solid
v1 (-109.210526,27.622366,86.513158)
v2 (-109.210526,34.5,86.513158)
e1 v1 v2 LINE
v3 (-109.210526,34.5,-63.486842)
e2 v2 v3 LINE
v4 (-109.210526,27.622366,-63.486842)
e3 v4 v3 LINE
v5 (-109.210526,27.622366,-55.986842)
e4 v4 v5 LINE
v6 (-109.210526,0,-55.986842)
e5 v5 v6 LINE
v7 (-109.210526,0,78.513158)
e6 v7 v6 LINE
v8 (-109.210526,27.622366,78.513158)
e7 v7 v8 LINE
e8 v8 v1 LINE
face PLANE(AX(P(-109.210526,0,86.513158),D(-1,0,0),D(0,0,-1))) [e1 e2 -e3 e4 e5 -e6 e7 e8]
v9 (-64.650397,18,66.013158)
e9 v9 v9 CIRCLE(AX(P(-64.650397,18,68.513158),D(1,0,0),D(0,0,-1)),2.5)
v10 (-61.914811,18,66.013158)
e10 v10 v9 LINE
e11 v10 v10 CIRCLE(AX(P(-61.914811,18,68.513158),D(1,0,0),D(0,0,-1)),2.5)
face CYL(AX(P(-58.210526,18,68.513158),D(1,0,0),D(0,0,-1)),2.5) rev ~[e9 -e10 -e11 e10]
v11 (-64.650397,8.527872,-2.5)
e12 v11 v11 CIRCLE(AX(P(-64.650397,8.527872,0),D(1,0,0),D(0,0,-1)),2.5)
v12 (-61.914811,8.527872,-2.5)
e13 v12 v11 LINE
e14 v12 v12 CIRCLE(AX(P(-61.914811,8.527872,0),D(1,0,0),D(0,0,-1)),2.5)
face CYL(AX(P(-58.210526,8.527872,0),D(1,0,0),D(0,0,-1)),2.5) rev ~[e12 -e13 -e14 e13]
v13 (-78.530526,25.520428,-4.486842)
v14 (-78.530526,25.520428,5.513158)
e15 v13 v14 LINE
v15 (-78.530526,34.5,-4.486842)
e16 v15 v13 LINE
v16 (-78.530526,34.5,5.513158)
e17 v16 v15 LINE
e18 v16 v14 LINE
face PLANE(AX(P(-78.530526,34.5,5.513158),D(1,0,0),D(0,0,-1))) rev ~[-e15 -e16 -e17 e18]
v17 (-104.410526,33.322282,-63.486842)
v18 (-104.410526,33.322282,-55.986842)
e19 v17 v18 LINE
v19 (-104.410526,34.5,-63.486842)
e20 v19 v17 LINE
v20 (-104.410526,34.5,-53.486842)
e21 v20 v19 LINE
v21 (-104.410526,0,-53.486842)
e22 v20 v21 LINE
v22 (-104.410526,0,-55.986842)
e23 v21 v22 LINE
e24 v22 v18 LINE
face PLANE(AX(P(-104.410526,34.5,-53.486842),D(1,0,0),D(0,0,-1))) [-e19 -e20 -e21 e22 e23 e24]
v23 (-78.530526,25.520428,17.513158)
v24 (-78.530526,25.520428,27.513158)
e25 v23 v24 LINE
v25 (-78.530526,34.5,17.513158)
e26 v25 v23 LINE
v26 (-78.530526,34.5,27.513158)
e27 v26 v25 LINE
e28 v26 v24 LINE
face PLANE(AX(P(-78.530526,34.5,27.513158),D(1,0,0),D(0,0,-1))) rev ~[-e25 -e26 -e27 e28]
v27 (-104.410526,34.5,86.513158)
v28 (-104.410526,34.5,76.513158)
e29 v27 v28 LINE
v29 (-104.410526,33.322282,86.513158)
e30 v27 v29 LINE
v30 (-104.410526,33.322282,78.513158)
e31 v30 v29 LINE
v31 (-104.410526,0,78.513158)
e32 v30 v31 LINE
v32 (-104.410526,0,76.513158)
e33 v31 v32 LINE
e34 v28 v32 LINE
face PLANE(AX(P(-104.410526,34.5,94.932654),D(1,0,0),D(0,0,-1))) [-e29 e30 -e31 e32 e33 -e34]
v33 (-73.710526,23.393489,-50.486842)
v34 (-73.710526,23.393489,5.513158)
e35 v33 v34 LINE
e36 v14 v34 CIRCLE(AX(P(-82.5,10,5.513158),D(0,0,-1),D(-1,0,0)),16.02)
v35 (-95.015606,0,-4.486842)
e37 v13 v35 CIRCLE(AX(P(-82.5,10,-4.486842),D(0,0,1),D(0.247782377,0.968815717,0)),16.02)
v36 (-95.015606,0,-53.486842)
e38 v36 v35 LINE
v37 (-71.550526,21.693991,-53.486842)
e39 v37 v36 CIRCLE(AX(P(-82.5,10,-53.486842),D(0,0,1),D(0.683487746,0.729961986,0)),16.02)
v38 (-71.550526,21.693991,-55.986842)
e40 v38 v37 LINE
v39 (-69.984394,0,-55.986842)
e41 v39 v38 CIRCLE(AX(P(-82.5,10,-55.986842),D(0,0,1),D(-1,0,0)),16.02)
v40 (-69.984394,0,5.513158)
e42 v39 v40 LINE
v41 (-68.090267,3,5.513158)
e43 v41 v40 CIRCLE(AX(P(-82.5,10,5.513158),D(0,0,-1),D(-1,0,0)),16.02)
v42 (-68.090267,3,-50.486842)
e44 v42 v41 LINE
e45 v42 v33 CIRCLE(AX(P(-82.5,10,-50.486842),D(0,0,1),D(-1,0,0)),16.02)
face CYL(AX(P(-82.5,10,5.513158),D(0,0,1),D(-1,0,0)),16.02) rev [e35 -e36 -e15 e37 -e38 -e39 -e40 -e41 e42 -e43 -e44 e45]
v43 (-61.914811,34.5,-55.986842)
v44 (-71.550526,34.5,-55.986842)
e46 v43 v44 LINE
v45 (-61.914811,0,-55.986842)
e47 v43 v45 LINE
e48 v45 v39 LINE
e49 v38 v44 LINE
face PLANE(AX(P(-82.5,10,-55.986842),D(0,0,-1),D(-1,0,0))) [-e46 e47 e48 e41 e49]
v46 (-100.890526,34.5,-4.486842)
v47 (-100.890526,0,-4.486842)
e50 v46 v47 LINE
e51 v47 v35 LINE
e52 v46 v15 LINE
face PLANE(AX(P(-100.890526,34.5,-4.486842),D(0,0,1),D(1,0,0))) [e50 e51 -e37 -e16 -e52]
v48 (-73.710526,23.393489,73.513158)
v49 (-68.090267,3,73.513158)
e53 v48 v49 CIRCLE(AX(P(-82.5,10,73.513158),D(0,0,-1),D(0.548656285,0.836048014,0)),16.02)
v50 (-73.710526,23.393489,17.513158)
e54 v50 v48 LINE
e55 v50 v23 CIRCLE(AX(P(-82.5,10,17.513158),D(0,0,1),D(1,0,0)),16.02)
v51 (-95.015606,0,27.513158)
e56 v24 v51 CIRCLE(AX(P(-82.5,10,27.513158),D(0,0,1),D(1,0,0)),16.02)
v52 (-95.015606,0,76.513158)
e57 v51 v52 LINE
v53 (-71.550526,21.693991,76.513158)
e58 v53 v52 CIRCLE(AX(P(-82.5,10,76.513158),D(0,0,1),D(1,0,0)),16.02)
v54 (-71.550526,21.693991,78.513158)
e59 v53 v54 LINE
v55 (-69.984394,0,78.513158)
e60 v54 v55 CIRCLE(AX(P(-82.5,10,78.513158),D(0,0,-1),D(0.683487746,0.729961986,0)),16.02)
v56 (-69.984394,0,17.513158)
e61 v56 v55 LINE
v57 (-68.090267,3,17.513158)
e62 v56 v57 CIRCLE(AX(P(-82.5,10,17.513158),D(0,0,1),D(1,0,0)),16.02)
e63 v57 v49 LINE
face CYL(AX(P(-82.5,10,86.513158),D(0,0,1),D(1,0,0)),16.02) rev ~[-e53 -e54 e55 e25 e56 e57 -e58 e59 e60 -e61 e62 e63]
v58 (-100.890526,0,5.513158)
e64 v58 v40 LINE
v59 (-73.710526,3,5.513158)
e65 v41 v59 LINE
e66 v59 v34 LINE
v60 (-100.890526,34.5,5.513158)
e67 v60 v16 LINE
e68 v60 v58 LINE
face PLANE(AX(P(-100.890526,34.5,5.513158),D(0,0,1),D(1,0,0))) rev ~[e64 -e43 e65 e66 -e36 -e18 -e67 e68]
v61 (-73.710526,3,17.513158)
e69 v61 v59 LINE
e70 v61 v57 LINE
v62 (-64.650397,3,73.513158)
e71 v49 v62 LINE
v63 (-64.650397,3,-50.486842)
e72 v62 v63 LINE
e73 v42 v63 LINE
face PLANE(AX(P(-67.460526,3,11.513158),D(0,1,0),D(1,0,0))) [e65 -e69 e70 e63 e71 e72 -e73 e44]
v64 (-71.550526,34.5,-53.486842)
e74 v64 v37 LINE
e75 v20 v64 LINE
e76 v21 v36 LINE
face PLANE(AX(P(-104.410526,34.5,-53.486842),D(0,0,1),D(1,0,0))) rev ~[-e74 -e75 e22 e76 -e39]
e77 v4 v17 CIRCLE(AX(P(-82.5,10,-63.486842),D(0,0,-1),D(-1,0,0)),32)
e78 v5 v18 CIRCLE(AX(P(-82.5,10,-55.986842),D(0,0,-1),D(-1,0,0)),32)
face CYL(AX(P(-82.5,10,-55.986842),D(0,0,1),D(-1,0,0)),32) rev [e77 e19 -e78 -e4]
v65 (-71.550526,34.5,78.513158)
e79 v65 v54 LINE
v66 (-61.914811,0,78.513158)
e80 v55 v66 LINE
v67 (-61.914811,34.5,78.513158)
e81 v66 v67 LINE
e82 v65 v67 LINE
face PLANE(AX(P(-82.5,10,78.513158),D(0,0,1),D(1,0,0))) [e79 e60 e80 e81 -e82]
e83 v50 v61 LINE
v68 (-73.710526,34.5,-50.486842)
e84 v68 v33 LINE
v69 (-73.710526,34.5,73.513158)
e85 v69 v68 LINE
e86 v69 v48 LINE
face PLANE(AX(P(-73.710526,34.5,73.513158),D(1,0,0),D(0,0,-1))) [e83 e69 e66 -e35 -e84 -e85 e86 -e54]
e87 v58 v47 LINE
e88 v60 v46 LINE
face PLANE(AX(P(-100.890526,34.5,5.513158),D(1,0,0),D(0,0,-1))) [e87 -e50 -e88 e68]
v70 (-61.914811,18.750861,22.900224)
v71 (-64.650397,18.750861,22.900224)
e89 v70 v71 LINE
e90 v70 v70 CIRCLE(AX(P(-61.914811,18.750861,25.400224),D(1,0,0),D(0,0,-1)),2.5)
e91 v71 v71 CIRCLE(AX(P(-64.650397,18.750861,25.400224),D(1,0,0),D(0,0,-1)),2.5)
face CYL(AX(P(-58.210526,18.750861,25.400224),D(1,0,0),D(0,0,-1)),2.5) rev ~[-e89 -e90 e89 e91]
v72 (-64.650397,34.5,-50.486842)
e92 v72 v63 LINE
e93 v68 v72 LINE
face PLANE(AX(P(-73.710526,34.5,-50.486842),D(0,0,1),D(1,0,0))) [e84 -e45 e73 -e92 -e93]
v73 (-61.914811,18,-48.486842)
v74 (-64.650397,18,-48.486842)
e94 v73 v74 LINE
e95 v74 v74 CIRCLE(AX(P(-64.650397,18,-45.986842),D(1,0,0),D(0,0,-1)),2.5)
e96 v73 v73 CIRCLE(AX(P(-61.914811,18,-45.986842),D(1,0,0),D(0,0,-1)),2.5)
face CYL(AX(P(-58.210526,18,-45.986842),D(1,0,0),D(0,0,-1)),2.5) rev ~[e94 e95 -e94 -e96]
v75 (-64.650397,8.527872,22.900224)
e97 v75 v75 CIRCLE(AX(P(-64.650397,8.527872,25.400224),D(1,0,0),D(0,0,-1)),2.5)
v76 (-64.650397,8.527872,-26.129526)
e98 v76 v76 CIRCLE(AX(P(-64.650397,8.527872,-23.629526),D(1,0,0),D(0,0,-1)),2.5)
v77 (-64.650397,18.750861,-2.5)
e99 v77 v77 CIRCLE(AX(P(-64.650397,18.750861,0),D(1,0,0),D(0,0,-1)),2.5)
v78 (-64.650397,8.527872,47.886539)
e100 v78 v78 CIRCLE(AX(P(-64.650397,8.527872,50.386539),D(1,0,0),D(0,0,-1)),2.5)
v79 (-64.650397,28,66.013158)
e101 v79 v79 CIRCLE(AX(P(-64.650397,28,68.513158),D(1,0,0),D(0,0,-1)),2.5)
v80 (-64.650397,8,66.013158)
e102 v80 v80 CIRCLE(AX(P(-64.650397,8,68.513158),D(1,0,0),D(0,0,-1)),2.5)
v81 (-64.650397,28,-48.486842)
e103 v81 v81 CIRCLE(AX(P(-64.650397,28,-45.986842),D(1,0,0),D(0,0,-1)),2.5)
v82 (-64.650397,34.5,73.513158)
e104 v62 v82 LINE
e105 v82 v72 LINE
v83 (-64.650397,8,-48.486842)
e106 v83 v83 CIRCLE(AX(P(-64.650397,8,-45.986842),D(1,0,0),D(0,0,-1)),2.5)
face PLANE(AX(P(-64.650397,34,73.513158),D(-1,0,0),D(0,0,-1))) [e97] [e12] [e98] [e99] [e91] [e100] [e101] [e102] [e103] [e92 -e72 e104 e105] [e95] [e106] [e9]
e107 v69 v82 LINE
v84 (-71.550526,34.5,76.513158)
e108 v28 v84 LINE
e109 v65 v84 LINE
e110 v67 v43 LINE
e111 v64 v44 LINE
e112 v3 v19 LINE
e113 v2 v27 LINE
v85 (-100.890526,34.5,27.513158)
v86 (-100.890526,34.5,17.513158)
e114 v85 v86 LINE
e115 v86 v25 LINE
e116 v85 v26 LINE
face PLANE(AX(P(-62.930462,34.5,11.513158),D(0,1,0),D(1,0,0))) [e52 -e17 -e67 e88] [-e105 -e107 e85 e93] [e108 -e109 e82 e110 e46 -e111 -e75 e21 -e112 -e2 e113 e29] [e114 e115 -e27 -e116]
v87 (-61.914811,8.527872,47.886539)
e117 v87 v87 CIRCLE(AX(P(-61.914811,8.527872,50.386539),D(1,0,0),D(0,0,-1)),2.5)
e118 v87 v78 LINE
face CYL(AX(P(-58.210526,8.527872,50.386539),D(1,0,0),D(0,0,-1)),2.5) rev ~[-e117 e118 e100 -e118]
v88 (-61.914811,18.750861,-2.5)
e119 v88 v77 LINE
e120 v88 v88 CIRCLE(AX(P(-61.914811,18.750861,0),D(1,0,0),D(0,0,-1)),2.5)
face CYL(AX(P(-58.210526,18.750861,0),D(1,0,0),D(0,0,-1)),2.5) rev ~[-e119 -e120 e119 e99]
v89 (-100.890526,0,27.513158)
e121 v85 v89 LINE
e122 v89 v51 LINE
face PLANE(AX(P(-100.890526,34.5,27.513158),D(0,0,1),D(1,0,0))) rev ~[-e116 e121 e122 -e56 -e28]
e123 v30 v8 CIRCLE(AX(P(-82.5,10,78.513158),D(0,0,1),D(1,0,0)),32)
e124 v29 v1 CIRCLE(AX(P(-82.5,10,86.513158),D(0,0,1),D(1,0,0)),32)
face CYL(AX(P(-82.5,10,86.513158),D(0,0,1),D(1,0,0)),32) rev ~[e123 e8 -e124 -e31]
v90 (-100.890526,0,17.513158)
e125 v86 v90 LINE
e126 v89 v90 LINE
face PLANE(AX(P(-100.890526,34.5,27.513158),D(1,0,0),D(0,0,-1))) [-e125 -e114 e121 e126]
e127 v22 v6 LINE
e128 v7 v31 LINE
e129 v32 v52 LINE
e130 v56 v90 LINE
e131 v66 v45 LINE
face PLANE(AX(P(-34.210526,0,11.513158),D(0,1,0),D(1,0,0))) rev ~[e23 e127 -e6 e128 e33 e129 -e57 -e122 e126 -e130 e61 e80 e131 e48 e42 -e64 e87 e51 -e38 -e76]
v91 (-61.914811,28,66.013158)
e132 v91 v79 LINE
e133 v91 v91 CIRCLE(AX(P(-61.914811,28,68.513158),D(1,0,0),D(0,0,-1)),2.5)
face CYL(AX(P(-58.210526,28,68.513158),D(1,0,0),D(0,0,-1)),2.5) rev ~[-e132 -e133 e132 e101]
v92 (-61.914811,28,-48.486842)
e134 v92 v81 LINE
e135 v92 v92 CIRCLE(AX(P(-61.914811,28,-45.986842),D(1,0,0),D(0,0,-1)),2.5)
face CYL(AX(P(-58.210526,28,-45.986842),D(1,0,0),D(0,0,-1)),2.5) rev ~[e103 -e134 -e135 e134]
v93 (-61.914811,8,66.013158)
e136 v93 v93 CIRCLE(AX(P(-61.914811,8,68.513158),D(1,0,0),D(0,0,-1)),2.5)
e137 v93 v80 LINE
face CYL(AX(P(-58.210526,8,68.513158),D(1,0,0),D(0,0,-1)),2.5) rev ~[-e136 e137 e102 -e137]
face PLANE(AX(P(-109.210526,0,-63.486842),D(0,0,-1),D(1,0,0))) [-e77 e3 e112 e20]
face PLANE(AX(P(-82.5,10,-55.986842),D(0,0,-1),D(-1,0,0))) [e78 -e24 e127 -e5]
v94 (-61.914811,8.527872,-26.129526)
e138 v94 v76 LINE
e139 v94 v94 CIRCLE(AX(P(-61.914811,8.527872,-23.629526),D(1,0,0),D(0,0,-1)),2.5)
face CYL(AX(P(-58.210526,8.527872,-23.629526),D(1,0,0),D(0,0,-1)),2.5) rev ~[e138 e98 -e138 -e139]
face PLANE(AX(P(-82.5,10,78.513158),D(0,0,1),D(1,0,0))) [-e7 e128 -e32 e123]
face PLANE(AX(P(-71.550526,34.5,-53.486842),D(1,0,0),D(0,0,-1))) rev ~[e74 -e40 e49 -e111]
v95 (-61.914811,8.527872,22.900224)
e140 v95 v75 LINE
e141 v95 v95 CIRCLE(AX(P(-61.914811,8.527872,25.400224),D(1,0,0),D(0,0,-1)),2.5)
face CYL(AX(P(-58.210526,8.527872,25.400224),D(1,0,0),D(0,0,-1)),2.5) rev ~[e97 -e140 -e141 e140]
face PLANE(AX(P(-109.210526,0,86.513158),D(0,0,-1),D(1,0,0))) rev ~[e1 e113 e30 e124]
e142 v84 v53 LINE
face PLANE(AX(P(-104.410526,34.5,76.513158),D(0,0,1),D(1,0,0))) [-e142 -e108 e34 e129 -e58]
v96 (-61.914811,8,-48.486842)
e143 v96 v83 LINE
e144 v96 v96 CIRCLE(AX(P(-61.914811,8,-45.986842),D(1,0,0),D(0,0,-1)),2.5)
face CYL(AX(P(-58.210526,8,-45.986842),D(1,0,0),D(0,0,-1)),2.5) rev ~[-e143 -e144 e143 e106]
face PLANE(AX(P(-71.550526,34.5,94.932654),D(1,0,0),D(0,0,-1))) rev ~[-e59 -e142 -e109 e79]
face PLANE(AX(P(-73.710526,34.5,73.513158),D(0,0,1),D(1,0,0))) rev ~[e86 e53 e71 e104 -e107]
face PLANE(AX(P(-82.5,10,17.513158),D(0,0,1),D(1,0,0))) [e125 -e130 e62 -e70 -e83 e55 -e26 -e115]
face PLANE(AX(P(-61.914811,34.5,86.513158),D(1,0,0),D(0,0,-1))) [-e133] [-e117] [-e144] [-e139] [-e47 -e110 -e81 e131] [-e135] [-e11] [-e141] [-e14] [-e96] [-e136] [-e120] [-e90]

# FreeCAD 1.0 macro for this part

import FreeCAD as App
import Part
import Sketcher
from FreeCAD import Vector

doc = App.newDocument("Part")
body = doc.addObject("PartDesign::Body", "Body")

# Sketch on XZ plane
sketch1 = body.newObject("Sketcher::SketchObject", "Sketch")
sketch1.AttachmentSupport = (doc.getObject("XZ_Plane"), [""])
sketch1.MapMode = "FlatFace"
sketch1.addGeometry([
    Part.LineSegment(Vector(-109.210526, -63.486842, 0), Vector(-109.210526, 86.513158, 0)),
    Part.LineSegment(Vector(-109.210526, 86.513158, 0), Vector(40.789474, 86.513158, 0)),
    Part.LineSegment(Vector(40.789474, 86.513158, 0), Vector(40.789474, -63.486842, 0)),
    Part.LineSegment(Vector(40.789474, -63.486842, 0), Vector(-109.210526, -63.486842, 0)),
], False)
sketch1.addConstraint([
    Sketcher.Constraint("Coincident", 0, 2, 1, 1),
    Sketcher.Constraint("Coincident", 1, 2, 2, 1),
    Sketcher.Constraint("Coincident", 2, 2, 3, 1),
    Sketcher.Constraint("Coincident", 3, 2, 0, 1),
    Sketcher.Constraint("Vertical", 0),
    Sketcher.Constraint("Horizontal", 1),
    Sketcher.Constraint("Vertical", 2),
    Sketcher.Constraint("Horizontal", 3),
    Sketcher.Constraint("Equal", 3, 0),
    Sketcher.Constraint("DistanceX", 1, 1, 1, 2, 150.0),
    Sketcher.Constraint("DistanceX", 0, 2, -1, 1, 109.210526),
    Sketcher.Constraint("DistanceY", -1, 1, 0, 2, 86.513158),
])
pad1 = body.newObject("PartDesign::Pad", "Pad")
pad1.Profile = sketch1
pad1.Length = 34.5
pad1.Reversed = True

# Sketch on XZ plane
sketch2 = body.newObject("Sketcher::SketchObject", "Sketch001")
sketch2.AttachmentSupport = (doc.getObject("XZ_Plane"), [""])
sketch2.MapMode = "FlatFace"
sketch2.AttachmentOffset = App.Placement(Vector(0, 0, -34.5), App.Rotation())
sketch2.addGeometry([
    Part.LineSegment(Vector(-58.210526, -60.486842, 0), Vector(-58.210526, 83.513158, 0)),
    Part.LineSegment(Vector(-58.210526, 83.513158, 0), Vector(37.789474, 83.513158, 0)),
    Part.LineSegment(Vector(37.789474, 83.513158, 0), Vector(37.789474, -60.486842, 0)),
    Part.LineSegment(Vector(37.789474, -60.486842, 0), Vector(-58.210526, -60.486842, 0)),
], False)
sketch2.addConstraint([
    Sketcher.Constraint("Coincident", 0, 2, 1, 1),
    Sketcher.Constraint("Coincident", 1, 2, 2, 1),
    Sketcher.Constraint("Coincident", 2, 2, 3, 1),
    Sketcher.Constraint("Coincident", 3, 2, 0, 1),
    Sketcher.Constraint("Vertical", 0),
    Sketcher.Constraint("Horizontal", 1),
    Sketcher.Constraint("Vertical", 2),
    Sketcher.Constraint("Horizontal", 3),
    Sketcher.Constraint("DistanceX", 1, 1, 1, 2, 96.0),
    Sketcher.Constraint("DistanceY", 0, 1, 0, 2, 144.0),
    Sketcher.Constraint("DistanceX", 0, 2, -1, 1, 58.210526),
    Sketcher.Constraint("DistanceY", -1, 1, 0, 2, 83.513158),
])
pocket1 = body.newObject("PartDesign::Pocket", "Pocket")
pocket1.Profile = sketch2
pocket1.Length = 31.5
pocket1.Reversed = True

# Sketch on XY plane
sketch3 = body.newObject("Sketcher::SketchObject", "Sketch002")
sketch3.AttachmentSupport = (doc.getObject("XY_Plane"), [""])
sketch3.MapMode = "FlatFace"
sketch3.AttachmentOffset = App.Placement(Vector(0, 0, 86.513158), App.Rotation())
sketch3.addGeometry([
    Part.Circle(Vector(33.789474, 10, 0), Vector(0, 0, 1), 2.5),
    Part.Circle(Vector(33.789474, 20, 0), Vector(0, 0, 1), 2.5),
    Part.Circle(Vector(33.789474, 30, 0), Vector(0, 0, 1), 2.5),
], False)
sketch3.addConstraint([
    Sketcher.Constraint("Equal", 0, 1),
    Sketcher.Constraint("Equal", 1, 2),
    Sketcher.Constraint("Vertical", 0, 3, 1, 3),
    Sketcher.Constraint("Vertical", 1, 3, 2, 3),
    Sketcher.Constraint("Diameter", 0, 5.0),
    Sketcher.Constraint("DistanceY", -1, 1, 0, 3, 10.0),
    Sketcher.Constraint("DistanceY", -1, 1, 1, 3, 20.0),
    Sketcher.Constraint("DistanceY", -1, 1, 2, 3, 30.0),
    Sketcher.Constraint("DistanceX", -1, 1, 0, 3, 33.789474),
])
pocket2 = body.newObject("PartDesign::Pocket", "Pocket001")
pocket2.Profile = sketch3
pocket2.Length = 5

# Sketch on XY plane
sketch4 = body.newObject("Sketcher::SketchObject", "Sketch003")
sketch4.AttachmentSupport = (doc.getObject("XY_Plane"), [""])
sketch4.MapMode = "FlatFace"
sketch4.AttachmentOffset = App.Placement(Vector(0, 0, -58.486842), App.Rotation())
sketch4.addGeometry([
    Part.Circle(Vector(33.789474, 10, 0), Vector(0, 0, 1), 2.5),
    Part.Circle(Vector(33.789474, 20, 0), Vector(0, 0, 1), 2.5),
    Part.Circle(Vector(33.789474, 30, 0), Vector(0, 0, 1), 2.5),
], False)
sketch4.addConstraint([
    Sketcher.Constraint("Equal", 0, 1),
    Sketcher.Constraint("Equal", 1, 2),
    Sketcher.Constraint("Vertical", 0, 3, 1, 3),
    Sketcher.Constraint("Vertical", 1, 3, 2, 3),
    Sketcher.Constraint("Diameter", 0, 5.0),
    Sketcher.Constraint("DistanceY", -1, 1, 0, 3, 10.0),
    Sketcher.Constraint("DistanceY", -1, 1, 1, 3, 20.0),
    Sketcher.Constraint("DistanceY", -1, 1, 2, 3, 30.0),
    Sketcher.Constraint("DistanceX", -1, 1, 0, 3, 33.789474),
])
pocket3 = body.newObject("PartDesign::Pocket", "Pocket002")
pocket3.Profile = sketch4
pocket3.Length = 5

# Sketch on XZ plane
sketch5 = body.newObject("Sketcher::SketchObject", "Sketch004")
sketch5.AttachmentSupport = (doc.getObject("XZ_Plane"), [""])
sketch5.MapMode = "FlatFace"
sketch5.AttachmentOffset = App.Placement(Vector(0, 0, -34.5), App.Rotation())
sketch5.addGeometry([
    Part.LineSegment(Vector(-73.710526, -50.486842, 0), Vector(-73.710526, 73.513158, 0)),
    Part.LineSegment(Vector(-73.710526, 73.513158, 0), Vector(-61.210526, 73.513158, 0)),
    Part.LineSegment(Vector(-61.210526, 73.513158, 0), Vector(-61.210526, -50.486842, 0)),
    Part.LineSegment(Vector(-61.210526, -50.486842, 0), Vector(-73.710526, -50.486842, 0)),
], False)
sketch5.addConstraint([
    Sketcher.Constraint("Coincident", 0, 2, 1, 1),
    Sketcher.Constraint("Coincident", 1, 2, 2, 1),
    Sketcher.Constraint("Coincident", 2, 2, 3, 1),
    Sketcher.Constraint("Coincident", 3, 2, 0, 1),
    Sketcher.Constraint("Vertical", 0),
    Sketcher.Constraint("Horizontal", 1),
    Sketcher.Constraint("Vertical", 2),
    Sketcher.Constraint("Horizontal", 3),
    Sketcher.Constraint("DistanceY", 0, 1, 0, 2, 124.0),
    Sketcher.Constraint("DistanceX", 1, 1, 1, 2, 12.5),
    Sketcher.Constraint("DistanceX", 0, 2, -1, 1, 73.710526),
    Sketcher.Constraint("DistanceY", -1, 1, 0, 2, 73.513158),
])
pocket4 = body.newObject("PartDesign::Pocket", "Pocket003")
pocket4.Profile = sketch5
pocket4.Length = 31.5
pocket4.Reversed = True

# Sketch on XZ plane
sketch6 = body.newObject("Sketcher::SketchObject", "Sketch005")
sketch6.AttachmentSupport = (doc.getObject("XZ_Plane"), [""])
sketch6.MapMode = "FlatFace"
sketch6.AttachmentOffset = App.Placement(Vector(0, 0, -34.5), App.Rotation())
sketch6.addGeometry([
    Part.LineSegment(Vector(-104.410526, -69.183519, 0), Vector(-104.410526, -53.486842, 0)),  # 0
    Part.LineSegment(Vector(-104.410526, -53.486842, 0), Vector(-71.550526, -53.486842, 0)),  # 1
    Part.LineSegment(Vector(-71.550526, -53.486842, 0), Vector(-71.550526, -69.183519, 0)),  # 2
    Part.LineSegment(Vector(-71.550526, -69.183519, 0), Vector(-104.410526, -69.183519, 0)),  # 3
    Part.LineSegment(Vector(-104.410526, 76.513158, 0), Vector(-104.410526, 94.932654, 0)),  # 4
    Part.LineSegment(Vector(-104.410526, 94.932654, 0), Vector(-71.550526, 94.932654, 0)),  # 5
    Part.LineSegment(Vector(-71.550526, 94.932654, 0), Vector(-71.550526, 76.513158, 0)),  # 6
    Part.LineSegment(Vector(-71.550526, 76.513158, 0), Vector(-104.410526, 76.513158, 0)),  # 7
], False)
sketch6.addConstraint([
    Sketcher.Constraint("Coincident", 0, 2, 1, 1),
    Sketcher.Constraint("Coincident", 1, 2, 2, 1),
    Sketcher.Constraint("Coincident", 2, 2, 3, 1),
    Sketcher.Constraint("Coincident", 3, 2, 0, 1),
    Sketcher.Constraint("Coincident", 4, 2, 5, 1),
    Sketcher.Constraint("Coincident", 5, 2, 6, 1),
    Sketcher.Constraint("Coincident", 6, 2, 7, 1),
    Sketcher.Constraint("Coincident", 7, 2, 4, 1),
    Sketcher.Constraint("Vertical", 0),
    Sketcher.Constraint("Horizontal", 1),
    Sketcher.Constraint("Vertical", 2),
    Sketcher.Constraint("Horizontal", 3),
    Sketcher.Constraint("Vertical", 4),
    Sketcher.Constraint("Horizontal", 5),
    Sketcher.Constraint("Vertical", 6),
    Sketcher.Constraint("Horizontal", 7),
    Sketcher.Constraint("Vertical", 3, 2, 4, 2),
    Sketcher.Constraint("Vertical", 2, 2, 5, 2),
    Sketcher.Constraint("DistanceY", 1, 2, 6, 2, 130.0),
    Sketcher.Constraint("DistanceX", 1, 1, 1, 2, 32.86),
    Sketcher.Constraint("DistanceY", 0, 1, 0, 2, 15.696676),
    Sketcher.Constraint("DistanceY", 4, 1, 4, 2, 18.419496),
    Sketcher.Constraint("DistanceY", 2, 2, -1, 1, 69.183519),
    Sketcher.Constraint("DistanceX", 0, 2, -1, 1, 104.410526),
])
pocket5 = body.newObject("PartDesign::Pocket", "Pocket004")
pocket5.Profile = sketch6
pocket5.Length = 36
pocket5.Reversed = True

# Sketch on XZ plane
sketch7 = body.newObject("Sketcher::SketchObject", "Sketch006")
sketch7.AttachmentSupport = (doc.getObject("XZ_Plane"), [""])
sketch7.MapMode = "FlatFace"
sketch7.AttachmentOffset = App.Placement(Vector(0, 0, -34.5), App.Rotation())
sketch7.addGeometry([
    Part.LineSegment(Vector(-100.890526, -4.486842, 0), Vector(-100.890526, 5.513158, 0)),  # 0
    Part.LineSegment(Vector(-100.890526, 5.513158, 0), Vector(-78.530526, 5.513158, 0)),  # 1
    Part.LineSegment(Vector(-78.530526, 5.513158, 0), Vector(-78.530526, -4.486842, 0)),  # 2
    Part.LineSegment(Vector(-78.530526, -4.486842, 0), Vector(-100.890526, -4.486842, 0)),  # 3
    Part.LineSegment(Vector(-100.890526, 17.513158, 0), Vector(-100.890526, 27.513158, 0)),  # 4
    Part.LineSegment(Vector(-100.890526, 27.513158, 0), Vector(-78.530526, 27.513158, 0)),  # 5
    Part.LineSegment(Vector(-78.530526, 27.513158, 0), Vector(-78.530526, 17.513158, 0)),  # 6
    Part.LineSegment(Vector(-78.530526, 17.513158, 0), Vector(-100.890526, 17.513158, 0)),  # 7
], False)
sketch7.addConstraint([
    Sketcher.Constraint("Coincident", 0, 2, 1, 1),
    Sketcher.Constraint("Coincident", 1, 2, 2, 1),
    Sketcher.Constraint("Coincident", 2, 2, 3, 1),
    Sketcher.Constraint("Coincident", 3, 2, 0, 1),
    Sketcher.Constraint("Coincident", 4, 2, 5, 1),
    Sketcher.Constraint("Coincident", 5, 2, 6, 1),
    Sketcher.Constraint("Coincident", 6, 2, 7, 1),
    Sketcher.Constraint("Coincident", 7, 2, 4, 1),
    Sketcher.Constraint("Vertical", 0),
    Sketcher.Constraint("Horizontal", 1),
    Sketcher.Constraint("Vertical", 2),
    Sketcher.Constraint("Horizontal", 3),
    Sketcher.Constraint("Vertical", 4),
    Sketcher.Constraint("Horizontal", 5),
    Sketcher.Constraint("Vertical", 6),
    Sketcher.Constraint("Horizontal", 7),
    Sketcher.Constraint("Vertical", 3, 2, 4, 2),
    Sketcher.Constraint("Vertical", 2, 2, 5, 2),
    Sketcher.Constraint("Equal", 2, 4),
    Sketcher.Constraint("DistanceY", 0, 1, 0, 2, 10.0),
    Sketcher.Constraint("DistanceY", 0, 2, 4, 2, 22.0),
    Sketcher.Constraint("DistanceX", 1, 1, 1, 2, 22.36),
    Sketcher.Constraint("DistanceX", 0, 2, -1, 1, 100.890526),
    Sketcher.Constraint("DistanceY", -1, 1, 0, 2, 5.513158),
])
pocket6 = body.newObject("PartDesign::Pocket", "Pocket005")
pocket6.Profile = sketch7
pocket6.Length = 36
pocket6.Reversed = True

# Sketch on XY plane
sketch8 = body.newObject("Sketcher::SketchObject", "Sketch007")
sketch8.AttachmentSupport = (doc.getObject("XY_Plane"), [""])
sketch8.MapMode = "FlatFace"
sketch8.AttachmentOffset = App.Placement(Vector(0, 0, 86.513158), App.Rotation())
sketch8.addGeometry(Part.Circle(Vector(-82.5, 10, 0), Vector(0, 0, 1), 32), False)
sketch8.addConstraint([
    Sketcher.Constraint("Diameter", 0, 64.0),
    Sketcher.Constraint("DistanceY", -1, 1, 0, 3, 10.0),
    Sketcher.Constraint("DistanceX", 0, 3, -1, 1, 82.5),
])
pocket7 = body.newObject("PartDesign::Pocket", "Pocket006")
pocket7.Profile = sketch8
pocket7.Length = 8

# Sketch on XY plane
sketch9 = body.newObject("Sketcher::SketchObject", "Sketch008")
sketch9.AttachmentSupport = (doc.getObject("XY_Plane"), [""])
sketch9.MapMode = "FlatFace"
sketch9.AttachmentOffset = App.Placement(Vector(0, 0, 86.513158), App.Rotation())
sketch9.addGeometry(Part.Circle(Vector(-82.5, 10, 0), Vector(0, 0, 1), 16.02), False)
sketch9.addConstraint([
    Sketcher.Constraint("Diameter", 0, 32.04),
    Sketcher.Constraint("DistanceY", -1, 1, 0, 3, 10.0),
    Sketcher.Constraint("DistanceX", 0, 3, -1, 1, 82.5),
])
pocket8 = body.newObject("PartDesign::Pocket", "Pocket007")
pocket8.Profile = sketch9
pocket8.Length = 69

# Sketch on XY plane
sketch10 = body.newObject("Sketcher::SketchObject", "Sketch009")
sketch10.AttachmentSupport = (doc.getObject("XY_Plane"), [""])
sketch10.MapMode = "FlatFace"
sketch10.AttachmentOffset = App.Placement(Vector(0, 0, -55.986842), App.Rotation())
sketch10.addGeometry(Part.Circle(Vector(-82.5, 10, 0), Vector(0, 0, 1), 32), False)
sketch10.addConstraint([
    Sketcher.Constraint("Diameter", 0, 64.0),
    Sketcher.Constraint("DistanceY", -1, 1, 0, 3, 10.0),
    Sketcher.Constraint("DistanceX", 0, 3, -1, 1, 82.5),
])
pocket9 = body.newObject("PartDesign::Pocket", "Pocket008")
pocket9.Profile = sketch10
pocket9.Length = 7.5

# Sketch on XY plane
sketch11 = body.newObject("Sketcher::SketchObject", "Sketch010")
sketch11.AttachmentSupport = (doc.getObject("XY_Plane"), [""])
sketch11.MapMode = "FlatFace"
sketch11.AttachmentOffset = App.Placement(Vector(0, 0, 5.513158), App.Rotation())
sketch11.addGeometry(Part.Circle(Vector(-82.5, 10, 0), Vector(0, 0, 1), 16.02), False)
sketch11.addConstraint([
    Sketcher.Constraint("Diameter", 0, 32.04),
    Sketcher.Constraint("DistanceY", -1, 1, 0, 3, 10.0),
    Sketcher.Constraint("DistanceX", 0, 3, -1, 1, 82.5),
])
pocket10 = body.newObject("PartDesign::Pocket", "Pocket009")
pocket10.Profile = sketch11
pocket10.Length = 69

# Sketch on YZ plane
sketch12 = body.newObject("Sketcher::SketchObject", "Sketch011")
sketch12.AttachmentSupport = (doc.getObject("YZ_Plane"), [""])
sketch12.MapMode = "FlatFace"
sketch12.AttachmentOffset = App.Placement(Vector(0, 0, -58.210526), App.Rotation())
sketch12.addGeometry([
    Part.Circle(Vector(8, 68.513158, 0), Vector(0, 0, 1), 2.5),  # 0
    Part.Circle(Vector(18, 68.513158, 0), Vector(0, 0, 1), 2.5),  # 1
    Part.Circle(Vector(28, 68.513158, 0), Vector(0, 0, 1), 2.5),  # 2
    Part.Circle(Vector(8, -45.986842, 0), Vector(0, 0, 1), 2.5),  # 3
    Part.Circle(Vector(18, -45.986842, 0), Vector(0, 0, 1), 2.5),  # 4
    Part.Circle(Vector(28, -45.986842, 0), Vector(0, 0, 1), 2.5),  # 5
], False)
sketch12.addConstraint([
    Sketcher.Constraint("Equal", 0, 1),
    Sketcher.Constraint("Equal", 1, 2),
    Sketcher.Constraint("Equal", 2, 3),
    Sketcher.Constraint("Equal", 3, 4),
    Sketcher.Constraint("Equal", 4, 5),
    Sketcher.Constraint("Horizontal", 0, 3, 1, 3),
    Sketcher.Constraint("Horizontal", 1, 3, 2, 3),
    Sketcher.Constraint("Horizontal", 3, 3, 4, 3),
    Sketcher.Constraint("Horizontal", 4, 3, 5, 3),
    Sketcher.Constraint("Vertical", 0, 3, 3, 3),
    Sketcher.Constraint("Vertical", 1, 3, 4, 3),
    Sketcher.Constraint("Vertical", 2, 3, 5, 3),
    Sketcher.Constraint("Diameter", 0, 5.0),
    Sketcher.Constraint("DistanceX", -1, 1, 0, 3, 8.0),
    Sketcher.Constraint("DistanceX", -1, 1, 1, 3, 18.0),
    Sketcher.Constraint("DistanceX", -1, 1, 2, 3, 28.0),
    Sketcher.Constraint("DistanceY", 3, 3, 0, 3, 114.5),
    Sketcher.Constraint("DistanceY", -1, 1, 0, 3, 68.513158),
])
pocket11 = body.newObject("PartDesign::Pocket", "Pocket010")
pocket11.Profile = sketch12
pocket11.Length = 10

# Sketch on XZ plane
sketch13 = body.newObject("Sketcher::SketchObject", "Sketch012")
sketch13.AttachmentSupport = (doc.getObject("XZ_Plane"), [""])
sketch13.MapMode = "FlatFace"
sketch13.AttachmentOffset = App.Placement(Vector(0, 0, -3), App.Rotation())
sketch13.addGeometry([
    Part.LineSegment(Vector(-58.210526, 15.513158, 0), Vector(-14.210526, 15.513158, 0)),  # 0
    Part.LineSegment(Vector(-14.210526, 15.513158, 0), Vector(-14.210526, 83.513158, 0)),  # 1
    Part.LineSegment(Vector(-14.210526, 83.513158, 0), Vector(-6.210526, 83.513158, 0)),  # 2
    Part.LineSegment(Vector(-6.210526, 83.513158, 0), Vector(-6.210526, 15.513158, 0)),  # 3
    Part.LineSegment(Vector(-6.210526, 15.513158, 0), Vector(37.789474, 15.513158, 0)),  # 4
    Part.LineSegment(Vector(37.789474, 15.513158, 0), Vector(37.789474, 7.513158, 0)),  # 5
    Part.LineSegment(Vector(37.789474, 7.513158, 0), Vector(-6.210526, 7.513158, 0)),  # 6
    Part.LineSegment(Vector(-6.210526, 7.513158, 0), Vector(-6.210526, -60.486842, 0)),  # 7
    Part.LineSegment(Vector(-6.210526, -60.486842, 0), Vector(-14.210526, -60.486842, 0)),  # 8
    Part.LineSegment(Vector(-14.210526, -60.486842, 0), Vector(-14.210526, 7.513158, 0)),  # 9
    Part.LineSegment(Vector(-14.210526, 7.513158, 0), Vector(-58.210526, 7.513158, 0)),  # 10
    Part.LineSegment(Vector(-58.210526, 7.513158, 0), Vector(-58.210526, 15.513158, 0)),  # 11
], False)
sketch13.addConstraint([
    Sketcher.Constraint("Coincident", 0, 2, 1, 1),
    Sketcher.Constraint("Coincident", 1, 2, 2, 1),
    Sketcher.Constraint("Coincident", 2, 2, 3, 1),
    Sketcher.Constraint("Coincident", 3, 2, 4, 1),
    Sketcher.Constraint("Coincident", 4, 2, 5, 1),
    Sketcher.Constraint("Coincident", 5, 2, 6, 1),
    Sketcher.Constraint("Coincident", 6, 2, 7, 1),
    Sketcher.Constraint("Coincident", 7, 2, 8, 1),
    Sketcher.Constraint("Coincident", 8, 2, 9, 1),
    Sketcher.Constraint("Coincident", 9, 2, 10, 1),
    Sketcher.Constraint("Coincident", 10, 2, 11, 1),
    Sketcher.Constraint("Coincident", 11, 2, 0, 1),
    Sketcher.Constraint("Horizontal", 0),
    Sketcher.Constraint("Vertical", 1),
    Sketcher.Constraint("Horizontal", 2),
    Sketcher.Constraint("Vertical", 3),
    Sketcher.Constraint("Horizontal", 4),
    Sketcher.Constraint("Vertical", 5),
    Sketcher.Constraint("Horizontal", 6),
    Sketcher.Constraint("Vertical", 7),
    Sketcher.Constraint("Horizontal", 8),
    Sketcher.Constraint("Vertical", 9),
    Sketcher.Constraint("Horizontal", 10),
    Sketcher.Constraint("Vertical", 11),
    Sketcher.Constraint("Horizontal", 0, 2, 3, 2),
    Sketcher.Constraint("Horizontal", 6, 2, 9, 2),
    Sketcher.Constraint("Vertical", 3, 2, 6, 2),
    Sketcher.Constraint("Vertical", 1, 2, 8, 2),
    Sketcher.Constraint("Equal", 0, 4),
    Sketcher.Constraint("Equal", 8, 5),
    Sketcher.Constraint("Equal", 3, 7),
    Sketcher.Constraint("DistanceX", 0, 1, 0, 2, 44.0),
    Sketcher.Constraint("DistanceX", 2, 1, 2, 2, 8.0),
    Sketcher.Constraint("DistanceY", 1, 1, 1, 2, 68.0),
    Sketcher.Constraint("DistanceX", 0, 2, -1, 1, 14.210526),
    Sketcher.Constraint("DistanceY", -1, 1, 0, 2, 15.513158),
])
pad2 = body.newObject("PartDesign::Pad", "Pad001")
pad2.Profile = sketch13
pad2.Length = 10
pad2.Reversed = True

# Sketch on XY plane
sketch14 = body.newObject("Sketcher::SketchObject", "Sketch013")
sketch14.AttachmentSupport = (doc.getObject("XY_Plane"), [""])
sketch14.MapMode = "FlatFace"
sketch14.AttachmentOffset = App.Placement(Vector(0, 0, 15.513158), App.Rotation())
sketch14.addGeometry([
    Part.Circle(Vector(-43.942882, 8, 0), Vector(0, 0, 1), 2.5),
    Part.Circle(Vector(-26.889588, 8, 0), Vector(0, 0, 1), 2.5),
    Part.Circle(Vector(9.588467, 8, 0), Vector(0, 0, 1), 2.5),
    Part.Circle(Vector(23.562385, 8, 0), Vector(0, 0, 1), 2.5),
], False)
sketch14.addConstraint([
    Sketcher.Constraint("Equal", 0, 1),
    Sketcher.Constraint("Equal", 1, 2),
    Sketcher.Constraint("Equal", 2, 3),
    Sketcher.Constraint("Horizontal", 0, 3, 1, 3),
    Sketcher.Constraint("Horizontal", 1, 3, 2, 3),
    Sketcher.Constraint("Horizontal", 2, 3, 3, 3),
    Sketcher.Constraint("Diameter", 0, 5.0),
    Sketcher.Constraint("DistanceY", -1, 1, 0, 3, 8.0),
    Sketcher.Constraint("DistanceX", 0, 3, 2, 3, 53.531349),
    Sketcher.Constraint("DistanceX", 2, 3, 3, 3, 13.973919),
    Sketcher.Constraint("DistanceX", 0, 3, -1, 1, 43.942882),
    Sketcher.Constraint("DistanceX", 1, 3, -1, 1, 26.889588),
])
pocket12 = body.newObject("PartDesign::Pocket", "Pocket011")
pocket12.Profile = sketch14
pocket12.Length = 10

# Sketch on XZ plane
sketch15 = body.newObject("Sketcher::SketchObject", "Sketch014")
sketch15.AttachmentSupport = (doc.getObject("XZ_Plane"), [""])
sketch15.MapMode = "FlatFace"
sketch15.AttachmentOffset = App.Placement(Vector(0, 0, -3), App.Rotation())
sketch15.addGeometry([
    Part.LineSegment(Vector(-64.650397, -50.486842, 0), Vector(-64.650397, 73.513158, 0)),
    Part.LineSegment(Vector(-64.650397, 73.513158, 0), Vector(-61.210526, 73.513158, 0)),
    Part.LineSegment(Vector(-61.210526, 73.513158, 0), Vector(-61.210526, -50.486842, 0)),
    Part.LineSegment(Vector(-61.210526, -50.486842, 0), Vector(-64.650397, -50.486842, 0)),
], False)
sketch15.addConstraint([
    Sketcher.Constraint("Coincident", 0, 2, 1, 1),
    Sketcher.Constraint("Coincident", 1, 2, 2, 1),
    Sketcher.Constraint("Coincident", 2, 2, 3, 1),
    Sketcher.Constraint("Coincident", 3, 2, 0, 1),
    Sketcher.Constraint("Vertical", 0),
    Sketcher.Constraint("Horizontal", 1),
    Sketcher.Constraint("Vertical", 2),
    Sketcher.Constraint("Horizontal", 3),
    Sketcher.Constraint("DistanceY", 0, 1, 0, 2, 124.0),
    Sketcher.Constraint("DistanceX", 1, 1, 1, 2, 3.43987),
    Sketcher.Constraint("DistanceX", 0, 2, -1, 1, 64.650397),
    Sketcher.Constraint("DistanceY", -1, 1, 0, 2, 73.513158),
])
pad3 = body.newObject("PartDesign::Pad", "Pad002")
pad3.Profile = sketch15
pad3.Length = 31
pad3.Reversed = True

# Sketch on XZ plane
sketch16 = body.newObject("Sketcher::SketchObject", "Sketch015")
sketch16.AttachmentSupport = (doc.getObject("XZ_Plane"), [""])
sketch16.MapMode = "FlatFace"
sketch16.AttachmentOffset = App.Placement(Vector(0, 0, -34), App.Rotation())
sketch16.addGeometry([
    Part.LineSegment(Vector(-64.650397, -50.486842, 0), Vector(-64.650397, 73.513158, 0)),
    Part.LineSegment(Vector(-64.650397, 73.513158, 0), Vector(-61.210526, 73.513158, 0)),
    Part.LineSegment(Vector(-61.210526, 73.513158, 0), Vector(-61.210526, -50.486842, 0)),
    Part.LineSegment(Vector(-61.210526, -50.486842, 0), Vector(-64.650397, -50.486842, 0)),
], False)
sketch16.addConstraint([
    Sketcher.Constraint("Coincident", 0, 2, 1, 1),
    Sketcher.Constraint("Coincident", 1, 2, 2, 1),
    Sketcher.Constraint("Coincident", 2, 2, 3, 1),
    Sketcher.Constraint("Coincident", 3, 2, 0, 1),
    Sketcher.Constraint("Vertical", 0),
    Sketcher.Constraint("Horizontal", 1),
    Sketcher.Constraint("Vertical", 2),
    Sketcher.Constraint("Horizontal", 3),
    Sketcher.Constraint("DistanceY", 0, 1, 0, 2, 124.0),
    Sketcher.Constraint("DistanceX", 1, 1, 1, 2, 3.43987),
    Sketcher.Constraint("DistanceX", 0, 2, -1, 1, 64.650397),
    Sketcher.Constraint("DistanceY", -1, 1, 0, 2, 73.513158),
])
pad4 = body.newObject("PartDesign::Pad", "Pad003")
pad4.Profile = sketch16
pad4.Length = 0.5
pad4.Reversed = True

# Sketch on YZ plane
sketch17 = body.newObject("Sketcher::SketchObject", "Sketch016")
sketch17.AttachmentSupport = (doc.getObject("YZ_Plane"), [""])
sketch17.MapMode = "FlatFace"
sketch17.AttachmentOffset = App.Placement(Vector(0, 0, -58.210526), App.Rotation())
sketch17.addGeometry([
    Part.Circle(Vector(28, 68.513158, 0), Vector(0, 0, 1), 2.5),  # 0
    Part.Circle(Vector(18, 68.513158, 0), Vector(0, 0, 1), 2.5),  # 1
    Part.Circle(Vector(8, 68.513158, 0), Vector(0, 0, 1), 2.5),  # 2
    Part.Circle(Vector(28, -45.986842, 0), Vector(0, 0, 1), 2.5),  # 3
    Part.Circle(Vector(18, -45.986842, 0), Vector(0, 0, 1), 2.5),  # 4
    Part.Circle(Vector(8, -45.986842, 0), Vector(0, 0, 1), 2.5),  # 5
], False)
sketch17.addConstraint([
    Sketcher.Constraint("Equal", 0, 1),
    Sketcher.Constraint("Equal", 1, 2),
    Sketcher.Constraint("Equal", 2, 3),
    Sketcher.Constraint("Equal", 3, 4),
    Sketcher.Constraint("Equal", 4, 5),
    Sketcher.Constraint("Horizontal", 0, 3, 1, 3),
    Sketcher.Constraint("Horizontal", 1, 3, 2, 3),
    Sketcher.Constraint("Horizontal", 3, 3, 4, 3),
    Sketcher.Constraint("Horizontal", 4, 3, 5, 3),
    Sketcher.Constraint("Vertical", 0, 3, 3, 3),
    Sketcher.Constraint("Vertical", 1, 3, 4, 3),
    Sketcher.Constraint("Vertical", 2, 3, 5, 3),
    Sketcher.Constraint("Diameter", 0, 5.0),
    Sketcher.Constraint("DistanceX", -1, 1, 0, 3, 28.0),
    Sketcher.Constraint("DistanceX", -1, 1, 1, 3, 18.0),
    Sketcher.Constraint("DistanceX", -1, 1, 2, 3, 8.0),
    Sketcher.Constraint("DistanceY", 3, 3, 0, 3, 114.5),
    Sketcher.Constraint("DistanceY", -1, 1, 0, 3, 68.513158),
])
pocket13 = body.newObject("PartDesign::Pocket", "Pocket012")
pocket13.Profile = sketch17
pocket13.Length = 10

# Sketch on YZ plane
sketch18 = body.newObject("Sketcher::SketchObject", "Sketch017")
sketch18.AttachmentSupport = (doc.getObject("YZ_Plane"), [""])
sketch18.MapMode = "FlatFace"
sketch18.AttachmentOffset = App.Placement(Vector(0, 0, -58.210526), App.Rotation())
sketch18.addGeometry([
    Part.Circle(Vector(8.527872, 0, 0), Vector(0, 0, 1), 2.5),  # 0
    Part.Circle(Vector(18.750861, 0, 0), Vector(0, 0, 1), 2.5),  # 1
    Part.Circle(Vector(8.527872, 25.400224, 0), Vector(0, 0, 1), 2.5),  # 2
    Part.Circle(Vector(18.750861, 25.400224, 0), Vector(0, 0, 1), 2.5),  # 3
    Part.Circle(Vector(8.527872, 50.386539, 0), Vector(0, 0, 1), 2.5),  # 4
    Part.Circle(Vector(8.527872, -23.629526, 0), Vector(0, 0, 1), 2.5),  # 5
], False)
sketch18.addConstraint([
    Sketcher.Constraint("Equal", 0, 1),
    Sketcher.Constraint("Equal", 1, 2),
    Sketcher.Constraint("Equal", 2, 3),
    Sketcher.Constraint("Equal", 3, 4),
    Sketcher.Constraint("Equal", 4, 5),
    Sketcher.Constraint("PointOnObject", 0, 3, -1),
    Sketcher.Constraint("PointOnObject", 1, 3, -1),
    Sketcher.Constraint("Horizontal", 2, 3, 3, 3),
    Sketcher.Constraint("Vertical", 0, 3, 2, 3),
    Sketcher.Constraint("Vertical", 1, 3, 3, 3),
    Sketcher.Constraint("Vertical", 2, 3, 4, 3),
    Sketcher.Constraint("Vertical", 4, 3, 5, 3),
    Sketcher.Constraint("Diameter", 0, 5.0),
    Sketcher.Constraint("DistanceX", -1, 1, 0, 3, 8.527872),
    Sketcher.Constraint("DistanceX", -1, 1, 1, 3, 18.750861),
    Sketcher.Constraint("DistanceY", -1, 1, 4, 3, 50.386539),
    Sketcher.Constraint("DistanceY", 5, 3, 2, 3, 49.02975),
    Sketcher.Constraint("DistanceY", -1, 1, 2, 3, 25.400224),
])
pocket14 = body.newObject("PartDesign::Pocket", "Pocket013")
pocket14.Profile = sketch18
pocket14.Length = 10

# Sketch on XZ plane
sketch19 = body.newObject("Sketcher::SketchObject", "Sketch018")
sketch19.AttachmentSupport = (doc.getObject("XZ_Plane"), [""])
sketch19.MapMode = "FlatFace"
sketch19.AttachmentOffset = App.Placement(Vector(0, 0, -3), App.Rotation())
sketch19.addGeometry([
    Part.Circle(Vector(19.789474, 43.513158, 0), Vector(0, 0, 1), 2.5),
    Part.Circle(Vector(19.789474, -20.486842, 0), Vector(0, 0, 1), 2.5),
], False)
sketch19.addConstraint([
    Sketcher.Constraint("Equal", 0, 1),
    Sketcher.Constraint("Vertical", 0, 3, 1, 3),
    Sketcher.Constraint("Diameter", 0, 5.0),
    Sketcher.Constraint("DistanceY", 1, 3, 0, 3, 64.0),
    Sketcher.Constraint("DistanceX", -1, 1, 0, 3, 19.789474),
    Sketcher.Constraint("DistanceY", -1, 1, 0, 3, 43.513158),
])
pocket15 = body.newObject("PartDesign::Pocket", "Pocket014")
pocket15.Profile = sketch19
pocket15.Length = 10
pocket15.Reversed = True

# Sketch on XZ plane
sketch20 = body.newObject("Sketcher::SketchObject", "Sketch019")
sketch20.AttachmentSupport = (doc.getObject("XZ_Plane"), [""])
sketch20.MapMode = "FlatFace"
sketch20.AttachmentOffset = App.Placement(Vector(0, 0, -34.5), App.Rotation())
sketch20.addGeometry([
    Part.LineSegment(Vector(-61.914811, -63.486842, 0), Vector(-61.914811, 86.513158, 0)),
    Part.LineSegment(Vector(-61.914811, 86.513158, 0), Vector(40.789474, 86.513158, 0)),
    Part.LineSegment(Vector(40.789474, 86.513158, 0), Vector(40.789474, -63.486842, 0)),
    Part.LineSegment(Vector(40.789474, -63.486842, 0), Vector(-61.914811, -63.486842, 0)),
], False)
sketch20.addConstraint([
    Sketcher.Constraint("Coincident", 0, 2, 1, 1),
    Sketcher.Constraint("Coincident", 1, 2, 2, 1),
    Sketcher.Constraint("Coincident", 2, 2, 3, 1),
    Sketcher.Constraint("Coincident", 3, 2, 0, 1),
    Sketcher.Constraint("Vertical", 0),
    Sketcher.Constraint("Horizontal", 1),
    Sketcher.Constraint("Vertical", 2),
    Sketcher.Constraint("Horizontal", 3),
    Sketcher.Constraint("DistanceY", 0, 1, 0, 2, 150.0),
    Sketcher.Constraint("DistanceX", 1, 1, 1, 2, 102.704285),
    Sketcher.Constraint("DistanceX", 0, 2, -1, 1, 61.914811),
    Sketcher.Constraint("DistanceY", -1, 1, 0, 2, 86.513158),
])
pocket16 = body.newObject("PartDesign::Pocket", "Pocket015")
pocket16.Profile = sketch20
pocket16.Length = 40
pocket16.Reversed = True

doc.recompute()
